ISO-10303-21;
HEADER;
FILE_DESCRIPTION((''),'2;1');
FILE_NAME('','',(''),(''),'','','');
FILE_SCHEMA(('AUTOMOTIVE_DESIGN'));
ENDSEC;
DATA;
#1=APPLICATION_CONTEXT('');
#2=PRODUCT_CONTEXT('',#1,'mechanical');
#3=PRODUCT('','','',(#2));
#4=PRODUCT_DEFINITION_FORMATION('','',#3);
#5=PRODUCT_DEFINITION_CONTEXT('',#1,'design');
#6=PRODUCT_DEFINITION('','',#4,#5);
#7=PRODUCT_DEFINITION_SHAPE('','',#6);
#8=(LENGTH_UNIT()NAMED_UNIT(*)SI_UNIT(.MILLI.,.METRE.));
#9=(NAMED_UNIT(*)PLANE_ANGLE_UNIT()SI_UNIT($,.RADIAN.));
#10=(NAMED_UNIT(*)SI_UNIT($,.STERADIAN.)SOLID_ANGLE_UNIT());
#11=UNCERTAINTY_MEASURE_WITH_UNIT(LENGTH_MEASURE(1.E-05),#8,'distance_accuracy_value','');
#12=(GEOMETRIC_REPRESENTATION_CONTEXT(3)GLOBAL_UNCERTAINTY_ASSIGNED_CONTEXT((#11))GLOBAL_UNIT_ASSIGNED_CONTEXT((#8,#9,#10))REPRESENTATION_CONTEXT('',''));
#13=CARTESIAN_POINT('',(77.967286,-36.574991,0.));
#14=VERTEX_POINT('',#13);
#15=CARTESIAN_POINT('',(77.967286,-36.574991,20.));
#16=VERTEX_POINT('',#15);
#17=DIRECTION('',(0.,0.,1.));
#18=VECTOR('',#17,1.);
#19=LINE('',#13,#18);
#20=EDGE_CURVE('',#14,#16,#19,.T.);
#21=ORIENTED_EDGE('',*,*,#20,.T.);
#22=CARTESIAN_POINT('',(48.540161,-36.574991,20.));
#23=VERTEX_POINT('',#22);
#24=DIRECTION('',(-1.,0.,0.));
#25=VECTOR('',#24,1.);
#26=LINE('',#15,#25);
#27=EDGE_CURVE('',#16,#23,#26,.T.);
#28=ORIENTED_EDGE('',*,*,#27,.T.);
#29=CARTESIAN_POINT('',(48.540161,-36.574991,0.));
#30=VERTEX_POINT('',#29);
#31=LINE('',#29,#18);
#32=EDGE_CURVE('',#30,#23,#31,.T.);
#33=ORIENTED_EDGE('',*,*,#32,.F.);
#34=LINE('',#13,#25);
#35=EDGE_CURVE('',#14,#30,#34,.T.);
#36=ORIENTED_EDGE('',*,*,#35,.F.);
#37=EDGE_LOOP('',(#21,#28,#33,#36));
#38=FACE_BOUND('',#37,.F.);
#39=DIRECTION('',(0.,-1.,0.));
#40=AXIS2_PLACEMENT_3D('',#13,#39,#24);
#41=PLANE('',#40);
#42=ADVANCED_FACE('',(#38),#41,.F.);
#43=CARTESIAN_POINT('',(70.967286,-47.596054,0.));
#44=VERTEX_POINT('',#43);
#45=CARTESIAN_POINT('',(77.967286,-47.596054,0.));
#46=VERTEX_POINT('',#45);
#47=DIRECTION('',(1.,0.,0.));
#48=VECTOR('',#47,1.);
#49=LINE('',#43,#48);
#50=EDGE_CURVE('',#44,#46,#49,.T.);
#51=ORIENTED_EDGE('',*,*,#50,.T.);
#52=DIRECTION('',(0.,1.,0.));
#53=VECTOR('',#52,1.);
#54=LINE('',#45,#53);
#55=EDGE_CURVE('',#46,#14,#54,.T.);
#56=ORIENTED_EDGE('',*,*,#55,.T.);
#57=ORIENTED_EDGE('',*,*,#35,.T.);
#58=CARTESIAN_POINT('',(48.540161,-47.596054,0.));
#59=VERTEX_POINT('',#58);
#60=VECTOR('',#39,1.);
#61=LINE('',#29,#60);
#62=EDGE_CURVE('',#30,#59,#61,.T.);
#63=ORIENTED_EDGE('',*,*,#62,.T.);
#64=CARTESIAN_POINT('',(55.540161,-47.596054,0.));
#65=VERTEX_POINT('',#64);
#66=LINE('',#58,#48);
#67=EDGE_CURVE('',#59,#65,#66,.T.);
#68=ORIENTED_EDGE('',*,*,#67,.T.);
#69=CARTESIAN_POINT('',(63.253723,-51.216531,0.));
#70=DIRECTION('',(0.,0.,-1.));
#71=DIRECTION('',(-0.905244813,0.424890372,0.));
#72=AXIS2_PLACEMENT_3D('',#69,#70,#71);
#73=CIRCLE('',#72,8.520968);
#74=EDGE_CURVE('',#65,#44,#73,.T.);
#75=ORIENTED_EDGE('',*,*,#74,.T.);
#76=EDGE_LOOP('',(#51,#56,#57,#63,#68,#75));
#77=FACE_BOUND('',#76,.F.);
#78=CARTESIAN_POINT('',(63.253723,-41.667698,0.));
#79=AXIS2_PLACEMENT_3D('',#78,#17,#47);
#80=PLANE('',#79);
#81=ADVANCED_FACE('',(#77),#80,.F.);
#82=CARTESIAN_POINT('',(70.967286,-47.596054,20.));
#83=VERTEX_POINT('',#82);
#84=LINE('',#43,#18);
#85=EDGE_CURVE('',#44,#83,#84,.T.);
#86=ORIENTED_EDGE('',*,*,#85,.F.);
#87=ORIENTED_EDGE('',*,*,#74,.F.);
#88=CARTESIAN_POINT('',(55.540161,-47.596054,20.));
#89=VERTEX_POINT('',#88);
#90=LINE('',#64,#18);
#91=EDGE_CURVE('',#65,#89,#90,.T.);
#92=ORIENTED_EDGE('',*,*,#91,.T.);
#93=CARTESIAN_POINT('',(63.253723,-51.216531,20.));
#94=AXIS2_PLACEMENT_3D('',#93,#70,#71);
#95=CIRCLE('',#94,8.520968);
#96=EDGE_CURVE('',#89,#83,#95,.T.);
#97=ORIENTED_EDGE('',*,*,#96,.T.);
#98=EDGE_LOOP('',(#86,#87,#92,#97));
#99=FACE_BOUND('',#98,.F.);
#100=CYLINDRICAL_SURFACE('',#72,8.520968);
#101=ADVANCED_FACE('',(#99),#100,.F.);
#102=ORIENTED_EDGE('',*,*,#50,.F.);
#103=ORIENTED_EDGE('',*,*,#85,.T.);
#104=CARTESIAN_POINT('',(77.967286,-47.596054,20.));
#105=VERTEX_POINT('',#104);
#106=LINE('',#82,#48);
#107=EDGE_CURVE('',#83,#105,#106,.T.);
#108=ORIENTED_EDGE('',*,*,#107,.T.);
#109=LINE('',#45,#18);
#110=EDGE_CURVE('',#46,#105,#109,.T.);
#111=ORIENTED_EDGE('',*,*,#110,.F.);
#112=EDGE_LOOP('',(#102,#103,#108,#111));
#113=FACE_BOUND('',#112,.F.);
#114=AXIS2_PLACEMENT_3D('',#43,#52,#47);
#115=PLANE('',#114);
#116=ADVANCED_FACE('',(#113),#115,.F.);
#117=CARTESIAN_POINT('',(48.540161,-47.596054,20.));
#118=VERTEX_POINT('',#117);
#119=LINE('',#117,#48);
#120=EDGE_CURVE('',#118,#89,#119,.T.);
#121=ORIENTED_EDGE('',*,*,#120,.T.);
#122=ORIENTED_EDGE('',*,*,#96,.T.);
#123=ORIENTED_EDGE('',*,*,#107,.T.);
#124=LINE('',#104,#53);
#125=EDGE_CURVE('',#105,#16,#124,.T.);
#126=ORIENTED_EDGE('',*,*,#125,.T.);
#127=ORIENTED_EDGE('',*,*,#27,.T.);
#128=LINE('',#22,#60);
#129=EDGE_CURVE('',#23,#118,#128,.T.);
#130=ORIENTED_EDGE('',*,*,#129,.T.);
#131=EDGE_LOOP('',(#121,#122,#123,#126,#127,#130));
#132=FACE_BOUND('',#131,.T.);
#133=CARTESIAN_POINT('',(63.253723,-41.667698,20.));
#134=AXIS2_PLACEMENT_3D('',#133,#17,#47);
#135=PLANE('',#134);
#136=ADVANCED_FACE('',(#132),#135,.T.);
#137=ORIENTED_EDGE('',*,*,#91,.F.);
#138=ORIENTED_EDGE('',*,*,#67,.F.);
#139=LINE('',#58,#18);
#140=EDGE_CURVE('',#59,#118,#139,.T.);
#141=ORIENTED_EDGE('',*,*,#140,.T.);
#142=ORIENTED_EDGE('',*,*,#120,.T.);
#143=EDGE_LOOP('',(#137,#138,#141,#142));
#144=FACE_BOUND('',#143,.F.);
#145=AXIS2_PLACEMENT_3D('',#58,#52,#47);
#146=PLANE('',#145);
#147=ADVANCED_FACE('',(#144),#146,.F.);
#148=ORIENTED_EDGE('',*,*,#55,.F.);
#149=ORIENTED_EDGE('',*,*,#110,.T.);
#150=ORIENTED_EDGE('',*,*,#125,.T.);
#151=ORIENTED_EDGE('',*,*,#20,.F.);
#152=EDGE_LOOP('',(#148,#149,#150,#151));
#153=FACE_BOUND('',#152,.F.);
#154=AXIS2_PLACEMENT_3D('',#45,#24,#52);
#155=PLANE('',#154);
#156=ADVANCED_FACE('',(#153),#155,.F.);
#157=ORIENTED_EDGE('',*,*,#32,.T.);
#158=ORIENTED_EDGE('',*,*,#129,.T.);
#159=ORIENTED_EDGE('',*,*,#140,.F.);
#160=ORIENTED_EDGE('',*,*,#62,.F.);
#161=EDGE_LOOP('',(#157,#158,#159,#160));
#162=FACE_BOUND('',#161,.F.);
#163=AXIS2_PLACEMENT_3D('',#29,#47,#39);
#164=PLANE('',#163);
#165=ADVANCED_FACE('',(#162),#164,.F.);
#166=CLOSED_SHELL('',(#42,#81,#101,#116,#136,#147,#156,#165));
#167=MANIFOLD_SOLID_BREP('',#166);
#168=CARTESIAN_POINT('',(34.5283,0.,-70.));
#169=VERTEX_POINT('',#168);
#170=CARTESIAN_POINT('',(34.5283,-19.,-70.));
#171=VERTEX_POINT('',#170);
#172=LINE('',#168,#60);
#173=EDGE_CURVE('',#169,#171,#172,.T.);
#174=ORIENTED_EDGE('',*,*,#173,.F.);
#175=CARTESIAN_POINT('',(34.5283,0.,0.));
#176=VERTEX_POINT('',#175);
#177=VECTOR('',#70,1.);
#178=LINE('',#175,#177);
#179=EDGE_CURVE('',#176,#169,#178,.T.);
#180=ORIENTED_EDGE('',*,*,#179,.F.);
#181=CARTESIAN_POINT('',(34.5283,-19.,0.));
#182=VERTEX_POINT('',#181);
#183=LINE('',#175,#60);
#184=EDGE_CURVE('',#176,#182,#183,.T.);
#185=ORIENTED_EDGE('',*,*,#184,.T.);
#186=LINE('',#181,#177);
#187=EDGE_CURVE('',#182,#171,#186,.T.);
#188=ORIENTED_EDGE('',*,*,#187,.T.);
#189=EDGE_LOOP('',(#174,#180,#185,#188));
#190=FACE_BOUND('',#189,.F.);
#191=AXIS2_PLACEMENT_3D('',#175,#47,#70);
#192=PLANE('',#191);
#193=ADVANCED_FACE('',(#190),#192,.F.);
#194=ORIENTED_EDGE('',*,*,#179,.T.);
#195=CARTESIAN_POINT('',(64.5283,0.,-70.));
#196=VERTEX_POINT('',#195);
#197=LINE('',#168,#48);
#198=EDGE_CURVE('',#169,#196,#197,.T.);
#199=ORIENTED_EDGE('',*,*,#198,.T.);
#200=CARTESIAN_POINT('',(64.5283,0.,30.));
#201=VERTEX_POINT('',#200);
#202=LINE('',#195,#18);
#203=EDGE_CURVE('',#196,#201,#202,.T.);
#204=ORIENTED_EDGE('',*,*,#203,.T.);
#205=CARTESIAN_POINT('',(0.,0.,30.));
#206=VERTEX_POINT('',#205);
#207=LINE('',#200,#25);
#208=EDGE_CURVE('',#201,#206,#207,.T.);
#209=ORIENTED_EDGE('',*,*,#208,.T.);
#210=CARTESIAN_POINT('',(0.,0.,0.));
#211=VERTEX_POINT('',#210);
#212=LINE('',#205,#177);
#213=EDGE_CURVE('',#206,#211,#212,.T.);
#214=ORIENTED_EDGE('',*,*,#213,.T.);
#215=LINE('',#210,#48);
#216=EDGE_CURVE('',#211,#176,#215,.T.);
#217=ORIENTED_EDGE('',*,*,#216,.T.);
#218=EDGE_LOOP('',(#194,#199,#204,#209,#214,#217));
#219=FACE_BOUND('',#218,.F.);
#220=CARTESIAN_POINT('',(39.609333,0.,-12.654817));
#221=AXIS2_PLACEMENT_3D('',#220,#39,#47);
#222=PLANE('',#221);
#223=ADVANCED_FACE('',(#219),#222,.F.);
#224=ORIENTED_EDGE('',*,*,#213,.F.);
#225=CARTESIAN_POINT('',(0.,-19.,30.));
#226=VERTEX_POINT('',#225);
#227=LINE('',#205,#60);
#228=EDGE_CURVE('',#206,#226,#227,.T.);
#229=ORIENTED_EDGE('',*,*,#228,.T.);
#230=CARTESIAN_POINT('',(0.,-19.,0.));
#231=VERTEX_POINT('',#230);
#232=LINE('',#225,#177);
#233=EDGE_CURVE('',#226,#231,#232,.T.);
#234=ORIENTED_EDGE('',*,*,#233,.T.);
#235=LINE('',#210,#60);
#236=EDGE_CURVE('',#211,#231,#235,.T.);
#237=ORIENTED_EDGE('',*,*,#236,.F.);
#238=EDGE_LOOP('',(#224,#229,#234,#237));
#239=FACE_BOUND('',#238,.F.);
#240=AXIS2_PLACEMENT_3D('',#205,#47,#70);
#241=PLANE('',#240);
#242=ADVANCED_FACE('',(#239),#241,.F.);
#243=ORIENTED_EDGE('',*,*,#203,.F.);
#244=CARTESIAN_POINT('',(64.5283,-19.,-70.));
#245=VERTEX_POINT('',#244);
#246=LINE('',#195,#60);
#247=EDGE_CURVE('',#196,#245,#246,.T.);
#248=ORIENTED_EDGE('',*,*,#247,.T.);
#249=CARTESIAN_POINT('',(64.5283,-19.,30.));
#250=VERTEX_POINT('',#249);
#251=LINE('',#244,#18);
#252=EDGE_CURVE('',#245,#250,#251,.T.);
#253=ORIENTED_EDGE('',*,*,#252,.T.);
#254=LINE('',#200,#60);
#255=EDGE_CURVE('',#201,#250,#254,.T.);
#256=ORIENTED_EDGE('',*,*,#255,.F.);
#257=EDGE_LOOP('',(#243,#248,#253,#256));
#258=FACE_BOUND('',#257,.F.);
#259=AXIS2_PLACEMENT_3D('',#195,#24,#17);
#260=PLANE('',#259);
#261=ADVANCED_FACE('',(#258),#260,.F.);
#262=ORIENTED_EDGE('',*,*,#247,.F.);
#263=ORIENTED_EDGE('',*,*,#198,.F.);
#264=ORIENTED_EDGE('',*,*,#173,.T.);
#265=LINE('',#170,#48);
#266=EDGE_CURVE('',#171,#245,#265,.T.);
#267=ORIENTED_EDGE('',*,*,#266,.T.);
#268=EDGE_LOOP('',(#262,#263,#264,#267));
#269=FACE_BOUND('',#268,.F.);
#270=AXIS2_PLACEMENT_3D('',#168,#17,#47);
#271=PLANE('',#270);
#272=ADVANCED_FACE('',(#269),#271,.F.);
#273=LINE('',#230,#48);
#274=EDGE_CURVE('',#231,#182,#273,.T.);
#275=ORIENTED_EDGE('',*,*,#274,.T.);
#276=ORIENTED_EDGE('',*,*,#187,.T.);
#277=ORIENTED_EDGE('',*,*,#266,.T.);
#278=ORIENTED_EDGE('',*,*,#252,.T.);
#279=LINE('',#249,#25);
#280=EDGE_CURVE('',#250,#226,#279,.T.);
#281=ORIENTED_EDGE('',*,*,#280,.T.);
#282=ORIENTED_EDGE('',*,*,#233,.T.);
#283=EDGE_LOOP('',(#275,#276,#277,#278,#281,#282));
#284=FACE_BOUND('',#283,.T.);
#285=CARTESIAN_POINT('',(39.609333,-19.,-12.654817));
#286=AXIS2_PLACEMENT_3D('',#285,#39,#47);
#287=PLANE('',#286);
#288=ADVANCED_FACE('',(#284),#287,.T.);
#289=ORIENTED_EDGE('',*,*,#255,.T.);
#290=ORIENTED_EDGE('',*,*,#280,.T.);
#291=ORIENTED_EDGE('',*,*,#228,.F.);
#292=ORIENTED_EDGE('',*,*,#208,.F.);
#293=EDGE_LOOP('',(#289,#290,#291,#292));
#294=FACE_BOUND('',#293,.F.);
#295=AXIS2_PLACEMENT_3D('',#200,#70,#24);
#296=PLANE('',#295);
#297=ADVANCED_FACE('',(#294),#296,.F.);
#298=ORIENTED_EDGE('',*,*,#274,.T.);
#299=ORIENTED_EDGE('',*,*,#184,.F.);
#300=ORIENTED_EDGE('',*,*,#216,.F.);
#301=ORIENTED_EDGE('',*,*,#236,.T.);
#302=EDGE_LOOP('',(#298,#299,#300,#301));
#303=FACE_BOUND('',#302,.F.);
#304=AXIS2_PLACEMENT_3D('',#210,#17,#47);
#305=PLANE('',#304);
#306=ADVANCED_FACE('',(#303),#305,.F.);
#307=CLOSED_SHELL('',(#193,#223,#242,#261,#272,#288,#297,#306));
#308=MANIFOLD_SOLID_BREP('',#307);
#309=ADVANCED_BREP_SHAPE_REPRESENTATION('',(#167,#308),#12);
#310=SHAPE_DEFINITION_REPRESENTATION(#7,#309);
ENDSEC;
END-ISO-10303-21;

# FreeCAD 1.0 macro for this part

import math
import FreeCAD as App
import Part
import Sketcher
from FreeCAD import Vector
Q = App.Units.Quantity

doc = App.newDocument("Part")
body = doc.addObject("PartDesign::Body", "Body")

# Sketch on XZ plane
sketch1 = body.newObject("Sketcher::SketchObject", "Sketch")
sketch1.AttachmentSupport = (doc.getObject("XZ_Plane"), [""])
sketch1.MapMode = "FlatFace"
sketch1.addGeometry(Part.LineSegment(Vector(0, 30, 0), Vector(0, 0, 0)), False)
sketch1.addGeometry(Part.LineSegment(Vector(0, 0, 0), Vector(35, 0, 0)), False)
sketch1.addGeometry(Part.LineSegment(Vector(35, 0, 0), Vector(35, -70, 0)), False)
sketch1.addGeometry(Part.LineSegment(Vector(35, -70, 0), Vector(65, -70, 0)), False)
sketch1.addGeometry(Part.LineSegment(Vector(65, -70, 0), Vector(65, 30, 0)), False)
sketch1.addGeometry(Part.LineSegment(Vector(65, 30, 0), Vector(0, 30, 0)), False)
sketch1.addConstraint(Sketcher.Constraint("Coincident", 0, 2, 1, 1))
sketch1.addConstraint(Sketcher.Constraint("Coincident", 1, 2, 2, 1))
sketch1.addConstraint(Sketcher.Constraint("Coincident", 2, 2, 3, 1))
sketch1.addConstraint(Sketcher.Constraint("Coincident", 3, 2, 4, 1))
sketch1.addConstraint(Sketcher.Constraint("Coincident", 4, 2, 5, 1))
sketch1.addConstraint(Sketcher.Constraint("Coincident", 5, 2, 0, 1))
sketch1.addConstraint(Sketcher.Constraint("Vertical", 0))
sketch1.addConstraint(Sketcher.Constraint("Horizontal", 1))
sketch1.addConstraint(Sketcher.Constraint("Vertical", 2))
sketch1.addConstraint(Sketcher.Constraint("Horizontal", 3))
sketch1.addConstraint(Sketcher.Constraint("Vertical", 4))
sketch1.addConstraint(Sketcher.Constraint("Horizontal", 5))
sketch1.addConstraint(Sketcher.Constraint("Coincident", 0, 2, -1, 1))
sketch1.addConstraint(Sketcher.Constraint("Equal", 3, 0))
sketch1.addConstraint(Sketcher.Constraint("DistanceX", 3, 1, 3, 2, Q("30 mm")))
sketch1.addConstraint(Sketcher.Constraint("DistanceY", 2, 2, 2, 1, Q("70 mm")))
sketch1.addConstraint(Sketcher.Constraint("DistanceX", 1, 1, 1, 2, Q("34.5283 mm")))
pad1 = body.newObject("PartDesign::Pad", "Pad")
pad1.Profile = sketch1
pad1.Length = 19
body2 = doc.addObject("PartDesign::Body", "Body001")

# Sketch on XY plane
sketch2 = body2.newObject("Sketcher::SketchObject", "Sketch001")
sketch2.AttachmentSupport = (doc.getObject("XY_Plane001"), [""])
sketch2.MapMode = "FlatFace"
sketch2.addGeometry(Part.LineSegment(Vector(78, -37, 0), Vector(49, -37, 0)), False)
sketch2.addGeometry(Part.LineSegment(Vector(49, -37, 0), Vector(49, -48, 0)), False)
sketch2.addGeometry(Part.LineSegment(Vector(49, -48, 0), Vector(56, -48, 0)), False)
sketch2.addGeometry(Part.ArcOfCircle(Part.Circle(Vector(63, -51, 0), Vector(0, 0, 1), 9), math.radians(25), math.radians(155)), False)
sketch2.addGeometry(Part.LineSegment(Vector(71, -48, 0), Vector(78, -48, 0)), False)
sketch2.addGeometry(Part.LineSegment(Vector(78, -48, 0), Vector(78, -37, 0)), False)
sketch2.addConstraint(Sketcher.Constraint("Coincident", 0, 2, 1, 1))
sketch2.addConstraint(Sketcher.Constraint("Coincident", 1, 2, 2, 1))
sketch2.addConstraint(Sketcher.Constraint("Coincident", 2, 2, 3, 2))
sketch2.addConstraint(Sketcher.Constraint("Coincident", 3, 1, 4, 1))
sketch2.addConstraint(Sketcher.Constraint("Coincident", 4, 2, 5, 1))
sketch2.addConstraint(Sketcher.Constraint("Coincident", 5, 2, 0, 1))
sketch2.addConstraint(Sketcher.Constraint("Horizontal", 0))
sketch2.addConstraint(Sketcher.Constraint("Vertical", 1))
sketch2.addConstraint(Sketcher.Constraint("Horizontal", 2))
sketch2.addConstraint(Sketcher.Constraint("Horizontal", 4))
sketch2.addConstraint(Sketcher.Constraint("Vertical", 5))
sketch2.addConstraint(Sketcher.Constraint("Horizontal", 2, 2, 3, 1))
sketch2.addConstraint(Sketcher.Constraint("Equal", 2, 4))
sketch2.addConstraint(Sketcher.Constraint("DistanceX", 2, 1, 2, 2, Q("7 mm")))
sketch2.addConstraint(Sketcher.Constraint("Radius", 3, Q("8.520968 mm")))
sketch2.addConstraint(Sketcher.Constraint("DistanceX", 0, 2, 0, 1, Q("29.427125 mm")))
sketch2.addConstraint(Sketcher.Constraint("DistanceY", 1, 2, 1, 1, Q("11.021063 mm")))
sketch2.addConstraint(Sketcher.Constraint("DistanceY", 3, 3, -1, 1, Q("51.216531 mm")))
sketch2.addConstraint(Sketcher.Constraint("DistanceX", -1, 1, 0, 2, Q("48.540161 mm")))
pad2 = body2.newObject("PartDesign::Pad", "Pad001")
pad2.Profile = sketch2
pad2.Length = 20

doc.recompute()
